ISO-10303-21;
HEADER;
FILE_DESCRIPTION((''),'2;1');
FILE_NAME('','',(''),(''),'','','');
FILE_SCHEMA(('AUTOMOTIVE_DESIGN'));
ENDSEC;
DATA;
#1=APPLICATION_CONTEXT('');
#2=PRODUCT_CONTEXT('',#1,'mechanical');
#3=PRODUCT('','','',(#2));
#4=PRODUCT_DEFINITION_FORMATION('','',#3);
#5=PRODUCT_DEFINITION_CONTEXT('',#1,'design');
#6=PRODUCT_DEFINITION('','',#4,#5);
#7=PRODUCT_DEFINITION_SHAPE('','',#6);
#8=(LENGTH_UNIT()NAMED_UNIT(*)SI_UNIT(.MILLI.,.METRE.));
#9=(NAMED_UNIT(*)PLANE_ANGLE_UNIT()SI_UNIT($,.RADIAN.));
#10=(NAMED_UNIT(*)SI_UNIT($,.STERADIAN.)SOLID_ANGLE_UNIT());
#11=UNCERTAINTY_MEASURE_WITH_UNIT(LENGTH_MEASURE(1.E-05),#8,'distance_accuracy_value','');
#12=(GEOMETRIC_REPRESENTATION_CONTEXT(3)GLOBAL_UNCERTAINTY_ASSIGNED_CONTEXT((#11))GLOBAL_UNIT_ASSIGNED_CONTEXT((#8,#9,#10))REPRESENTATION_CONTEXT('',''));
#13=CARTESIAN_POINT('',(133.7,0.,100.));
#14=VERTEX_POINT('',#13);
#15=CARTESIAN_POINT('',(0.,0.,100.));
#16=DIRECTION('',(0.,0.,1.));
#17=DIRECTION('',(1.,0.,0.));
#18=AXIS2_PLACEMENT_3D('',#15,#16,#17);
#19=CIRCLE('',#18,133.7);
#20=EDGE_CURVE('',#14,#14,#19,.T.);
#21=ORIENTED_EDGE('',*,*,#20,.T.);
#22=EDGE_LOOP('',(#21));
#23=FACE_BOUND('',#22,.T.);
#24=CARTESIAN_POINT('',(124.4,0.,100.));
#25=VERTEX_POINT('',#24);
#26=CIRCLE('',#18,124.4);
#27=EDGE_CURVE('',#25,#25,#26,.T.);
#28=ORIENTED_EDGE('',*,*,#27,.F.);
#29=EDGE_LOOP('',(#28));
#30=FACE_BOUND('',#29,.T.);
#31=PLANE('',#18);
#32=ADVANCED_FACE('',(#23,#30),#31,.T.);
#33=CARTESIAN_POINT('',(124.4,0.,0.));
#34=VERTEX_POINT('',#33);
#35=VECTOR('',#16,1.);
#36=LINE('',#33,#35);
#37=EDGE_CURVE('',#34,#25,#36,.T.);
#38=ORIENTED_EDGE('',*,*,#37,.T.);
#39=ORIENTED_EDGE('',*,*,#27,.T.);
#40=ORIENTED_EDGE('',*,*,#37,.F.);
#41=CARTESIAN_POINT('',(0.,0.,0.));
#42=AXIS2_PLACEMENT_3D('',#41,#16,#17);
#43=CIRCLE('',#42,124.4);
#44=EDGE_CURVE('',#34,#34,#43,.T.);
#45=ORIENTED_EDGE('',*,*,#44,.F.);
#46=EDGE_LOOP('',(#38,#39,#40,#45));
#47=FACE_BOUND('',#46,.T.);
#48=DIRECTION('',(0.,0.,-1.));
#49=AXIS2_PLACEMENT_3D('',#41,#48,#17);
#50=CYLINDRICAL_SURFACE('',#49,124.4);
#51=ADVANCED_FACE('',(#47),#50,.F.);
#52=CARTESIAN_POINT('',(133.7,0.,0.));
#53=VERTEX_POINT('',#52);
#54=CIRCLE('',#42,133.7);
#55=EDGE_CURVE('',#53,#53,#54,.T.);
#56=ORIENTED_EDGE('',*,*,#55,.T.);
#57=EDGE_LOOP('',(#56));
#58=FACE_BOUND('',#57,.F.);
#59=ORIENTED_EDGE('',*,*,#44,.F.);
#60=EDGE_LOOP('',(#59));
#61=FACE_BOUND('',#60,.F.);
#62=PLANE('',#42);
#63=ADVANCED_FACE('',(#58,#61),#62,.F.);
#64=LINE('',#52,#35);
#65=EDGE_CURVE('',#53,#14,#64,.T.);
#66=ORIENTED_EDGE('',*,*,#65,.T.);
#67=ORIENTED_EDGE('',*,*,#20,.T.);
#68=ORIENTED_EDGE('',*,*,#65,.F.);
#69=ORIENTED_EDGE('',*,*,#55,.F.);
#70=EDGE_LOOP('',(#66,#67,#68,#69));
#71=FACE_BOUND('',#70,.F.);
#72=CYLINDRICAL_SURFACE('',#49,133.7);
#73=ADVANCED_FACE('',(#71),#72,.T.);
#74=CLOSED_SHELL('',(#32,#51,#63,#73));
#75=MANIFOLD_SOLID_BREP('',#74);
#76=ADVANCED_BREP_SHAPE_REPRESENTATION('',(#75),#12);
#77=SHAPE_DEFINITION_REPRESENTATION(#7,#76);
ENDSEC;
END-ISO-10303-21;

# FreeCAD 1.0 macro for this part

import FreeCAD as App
import Part
import Sketcher

doc = App.newDocument("Part")
body = doc.addObject("PartDesign::Body", "Body")

sketch1 = body.newObject("Sketcher::SketchObject", "Sketch")
sketch1.AttachmentSupport = (doc.getObject("XY_Plane"), [""])
sketch1.MapMode = "FlatFace"
sketch1.addGeometry(Part.Circle(App.Vector(0, 0, 0), App.Vector(0, 0, 1), 134), False)
sketch1.addGeometry(Part.Circle(App.Vector(0, 0, 0), App.Vector(0, 0, 1), 124), False)
sketch1.addConstraint(Sketcher.Constraint("Coincident", 0, 3, -1, 1))
sketch1.addConstraint(Sketcher.Constraint("Coincident", 1, 3, -1, 1))
sketch1.addConstraint(Sketcher.Constraint("Diameter", 0, 267.4))
sketch1.addConstraint(Sketcher.Constraint("Diameter", 1, 248.8))
pad1 = body.newObject("PartDesign::Pad", "Pad")
pad1.Profile = sketch1
pad1.Length = 100

doc.recompute()
